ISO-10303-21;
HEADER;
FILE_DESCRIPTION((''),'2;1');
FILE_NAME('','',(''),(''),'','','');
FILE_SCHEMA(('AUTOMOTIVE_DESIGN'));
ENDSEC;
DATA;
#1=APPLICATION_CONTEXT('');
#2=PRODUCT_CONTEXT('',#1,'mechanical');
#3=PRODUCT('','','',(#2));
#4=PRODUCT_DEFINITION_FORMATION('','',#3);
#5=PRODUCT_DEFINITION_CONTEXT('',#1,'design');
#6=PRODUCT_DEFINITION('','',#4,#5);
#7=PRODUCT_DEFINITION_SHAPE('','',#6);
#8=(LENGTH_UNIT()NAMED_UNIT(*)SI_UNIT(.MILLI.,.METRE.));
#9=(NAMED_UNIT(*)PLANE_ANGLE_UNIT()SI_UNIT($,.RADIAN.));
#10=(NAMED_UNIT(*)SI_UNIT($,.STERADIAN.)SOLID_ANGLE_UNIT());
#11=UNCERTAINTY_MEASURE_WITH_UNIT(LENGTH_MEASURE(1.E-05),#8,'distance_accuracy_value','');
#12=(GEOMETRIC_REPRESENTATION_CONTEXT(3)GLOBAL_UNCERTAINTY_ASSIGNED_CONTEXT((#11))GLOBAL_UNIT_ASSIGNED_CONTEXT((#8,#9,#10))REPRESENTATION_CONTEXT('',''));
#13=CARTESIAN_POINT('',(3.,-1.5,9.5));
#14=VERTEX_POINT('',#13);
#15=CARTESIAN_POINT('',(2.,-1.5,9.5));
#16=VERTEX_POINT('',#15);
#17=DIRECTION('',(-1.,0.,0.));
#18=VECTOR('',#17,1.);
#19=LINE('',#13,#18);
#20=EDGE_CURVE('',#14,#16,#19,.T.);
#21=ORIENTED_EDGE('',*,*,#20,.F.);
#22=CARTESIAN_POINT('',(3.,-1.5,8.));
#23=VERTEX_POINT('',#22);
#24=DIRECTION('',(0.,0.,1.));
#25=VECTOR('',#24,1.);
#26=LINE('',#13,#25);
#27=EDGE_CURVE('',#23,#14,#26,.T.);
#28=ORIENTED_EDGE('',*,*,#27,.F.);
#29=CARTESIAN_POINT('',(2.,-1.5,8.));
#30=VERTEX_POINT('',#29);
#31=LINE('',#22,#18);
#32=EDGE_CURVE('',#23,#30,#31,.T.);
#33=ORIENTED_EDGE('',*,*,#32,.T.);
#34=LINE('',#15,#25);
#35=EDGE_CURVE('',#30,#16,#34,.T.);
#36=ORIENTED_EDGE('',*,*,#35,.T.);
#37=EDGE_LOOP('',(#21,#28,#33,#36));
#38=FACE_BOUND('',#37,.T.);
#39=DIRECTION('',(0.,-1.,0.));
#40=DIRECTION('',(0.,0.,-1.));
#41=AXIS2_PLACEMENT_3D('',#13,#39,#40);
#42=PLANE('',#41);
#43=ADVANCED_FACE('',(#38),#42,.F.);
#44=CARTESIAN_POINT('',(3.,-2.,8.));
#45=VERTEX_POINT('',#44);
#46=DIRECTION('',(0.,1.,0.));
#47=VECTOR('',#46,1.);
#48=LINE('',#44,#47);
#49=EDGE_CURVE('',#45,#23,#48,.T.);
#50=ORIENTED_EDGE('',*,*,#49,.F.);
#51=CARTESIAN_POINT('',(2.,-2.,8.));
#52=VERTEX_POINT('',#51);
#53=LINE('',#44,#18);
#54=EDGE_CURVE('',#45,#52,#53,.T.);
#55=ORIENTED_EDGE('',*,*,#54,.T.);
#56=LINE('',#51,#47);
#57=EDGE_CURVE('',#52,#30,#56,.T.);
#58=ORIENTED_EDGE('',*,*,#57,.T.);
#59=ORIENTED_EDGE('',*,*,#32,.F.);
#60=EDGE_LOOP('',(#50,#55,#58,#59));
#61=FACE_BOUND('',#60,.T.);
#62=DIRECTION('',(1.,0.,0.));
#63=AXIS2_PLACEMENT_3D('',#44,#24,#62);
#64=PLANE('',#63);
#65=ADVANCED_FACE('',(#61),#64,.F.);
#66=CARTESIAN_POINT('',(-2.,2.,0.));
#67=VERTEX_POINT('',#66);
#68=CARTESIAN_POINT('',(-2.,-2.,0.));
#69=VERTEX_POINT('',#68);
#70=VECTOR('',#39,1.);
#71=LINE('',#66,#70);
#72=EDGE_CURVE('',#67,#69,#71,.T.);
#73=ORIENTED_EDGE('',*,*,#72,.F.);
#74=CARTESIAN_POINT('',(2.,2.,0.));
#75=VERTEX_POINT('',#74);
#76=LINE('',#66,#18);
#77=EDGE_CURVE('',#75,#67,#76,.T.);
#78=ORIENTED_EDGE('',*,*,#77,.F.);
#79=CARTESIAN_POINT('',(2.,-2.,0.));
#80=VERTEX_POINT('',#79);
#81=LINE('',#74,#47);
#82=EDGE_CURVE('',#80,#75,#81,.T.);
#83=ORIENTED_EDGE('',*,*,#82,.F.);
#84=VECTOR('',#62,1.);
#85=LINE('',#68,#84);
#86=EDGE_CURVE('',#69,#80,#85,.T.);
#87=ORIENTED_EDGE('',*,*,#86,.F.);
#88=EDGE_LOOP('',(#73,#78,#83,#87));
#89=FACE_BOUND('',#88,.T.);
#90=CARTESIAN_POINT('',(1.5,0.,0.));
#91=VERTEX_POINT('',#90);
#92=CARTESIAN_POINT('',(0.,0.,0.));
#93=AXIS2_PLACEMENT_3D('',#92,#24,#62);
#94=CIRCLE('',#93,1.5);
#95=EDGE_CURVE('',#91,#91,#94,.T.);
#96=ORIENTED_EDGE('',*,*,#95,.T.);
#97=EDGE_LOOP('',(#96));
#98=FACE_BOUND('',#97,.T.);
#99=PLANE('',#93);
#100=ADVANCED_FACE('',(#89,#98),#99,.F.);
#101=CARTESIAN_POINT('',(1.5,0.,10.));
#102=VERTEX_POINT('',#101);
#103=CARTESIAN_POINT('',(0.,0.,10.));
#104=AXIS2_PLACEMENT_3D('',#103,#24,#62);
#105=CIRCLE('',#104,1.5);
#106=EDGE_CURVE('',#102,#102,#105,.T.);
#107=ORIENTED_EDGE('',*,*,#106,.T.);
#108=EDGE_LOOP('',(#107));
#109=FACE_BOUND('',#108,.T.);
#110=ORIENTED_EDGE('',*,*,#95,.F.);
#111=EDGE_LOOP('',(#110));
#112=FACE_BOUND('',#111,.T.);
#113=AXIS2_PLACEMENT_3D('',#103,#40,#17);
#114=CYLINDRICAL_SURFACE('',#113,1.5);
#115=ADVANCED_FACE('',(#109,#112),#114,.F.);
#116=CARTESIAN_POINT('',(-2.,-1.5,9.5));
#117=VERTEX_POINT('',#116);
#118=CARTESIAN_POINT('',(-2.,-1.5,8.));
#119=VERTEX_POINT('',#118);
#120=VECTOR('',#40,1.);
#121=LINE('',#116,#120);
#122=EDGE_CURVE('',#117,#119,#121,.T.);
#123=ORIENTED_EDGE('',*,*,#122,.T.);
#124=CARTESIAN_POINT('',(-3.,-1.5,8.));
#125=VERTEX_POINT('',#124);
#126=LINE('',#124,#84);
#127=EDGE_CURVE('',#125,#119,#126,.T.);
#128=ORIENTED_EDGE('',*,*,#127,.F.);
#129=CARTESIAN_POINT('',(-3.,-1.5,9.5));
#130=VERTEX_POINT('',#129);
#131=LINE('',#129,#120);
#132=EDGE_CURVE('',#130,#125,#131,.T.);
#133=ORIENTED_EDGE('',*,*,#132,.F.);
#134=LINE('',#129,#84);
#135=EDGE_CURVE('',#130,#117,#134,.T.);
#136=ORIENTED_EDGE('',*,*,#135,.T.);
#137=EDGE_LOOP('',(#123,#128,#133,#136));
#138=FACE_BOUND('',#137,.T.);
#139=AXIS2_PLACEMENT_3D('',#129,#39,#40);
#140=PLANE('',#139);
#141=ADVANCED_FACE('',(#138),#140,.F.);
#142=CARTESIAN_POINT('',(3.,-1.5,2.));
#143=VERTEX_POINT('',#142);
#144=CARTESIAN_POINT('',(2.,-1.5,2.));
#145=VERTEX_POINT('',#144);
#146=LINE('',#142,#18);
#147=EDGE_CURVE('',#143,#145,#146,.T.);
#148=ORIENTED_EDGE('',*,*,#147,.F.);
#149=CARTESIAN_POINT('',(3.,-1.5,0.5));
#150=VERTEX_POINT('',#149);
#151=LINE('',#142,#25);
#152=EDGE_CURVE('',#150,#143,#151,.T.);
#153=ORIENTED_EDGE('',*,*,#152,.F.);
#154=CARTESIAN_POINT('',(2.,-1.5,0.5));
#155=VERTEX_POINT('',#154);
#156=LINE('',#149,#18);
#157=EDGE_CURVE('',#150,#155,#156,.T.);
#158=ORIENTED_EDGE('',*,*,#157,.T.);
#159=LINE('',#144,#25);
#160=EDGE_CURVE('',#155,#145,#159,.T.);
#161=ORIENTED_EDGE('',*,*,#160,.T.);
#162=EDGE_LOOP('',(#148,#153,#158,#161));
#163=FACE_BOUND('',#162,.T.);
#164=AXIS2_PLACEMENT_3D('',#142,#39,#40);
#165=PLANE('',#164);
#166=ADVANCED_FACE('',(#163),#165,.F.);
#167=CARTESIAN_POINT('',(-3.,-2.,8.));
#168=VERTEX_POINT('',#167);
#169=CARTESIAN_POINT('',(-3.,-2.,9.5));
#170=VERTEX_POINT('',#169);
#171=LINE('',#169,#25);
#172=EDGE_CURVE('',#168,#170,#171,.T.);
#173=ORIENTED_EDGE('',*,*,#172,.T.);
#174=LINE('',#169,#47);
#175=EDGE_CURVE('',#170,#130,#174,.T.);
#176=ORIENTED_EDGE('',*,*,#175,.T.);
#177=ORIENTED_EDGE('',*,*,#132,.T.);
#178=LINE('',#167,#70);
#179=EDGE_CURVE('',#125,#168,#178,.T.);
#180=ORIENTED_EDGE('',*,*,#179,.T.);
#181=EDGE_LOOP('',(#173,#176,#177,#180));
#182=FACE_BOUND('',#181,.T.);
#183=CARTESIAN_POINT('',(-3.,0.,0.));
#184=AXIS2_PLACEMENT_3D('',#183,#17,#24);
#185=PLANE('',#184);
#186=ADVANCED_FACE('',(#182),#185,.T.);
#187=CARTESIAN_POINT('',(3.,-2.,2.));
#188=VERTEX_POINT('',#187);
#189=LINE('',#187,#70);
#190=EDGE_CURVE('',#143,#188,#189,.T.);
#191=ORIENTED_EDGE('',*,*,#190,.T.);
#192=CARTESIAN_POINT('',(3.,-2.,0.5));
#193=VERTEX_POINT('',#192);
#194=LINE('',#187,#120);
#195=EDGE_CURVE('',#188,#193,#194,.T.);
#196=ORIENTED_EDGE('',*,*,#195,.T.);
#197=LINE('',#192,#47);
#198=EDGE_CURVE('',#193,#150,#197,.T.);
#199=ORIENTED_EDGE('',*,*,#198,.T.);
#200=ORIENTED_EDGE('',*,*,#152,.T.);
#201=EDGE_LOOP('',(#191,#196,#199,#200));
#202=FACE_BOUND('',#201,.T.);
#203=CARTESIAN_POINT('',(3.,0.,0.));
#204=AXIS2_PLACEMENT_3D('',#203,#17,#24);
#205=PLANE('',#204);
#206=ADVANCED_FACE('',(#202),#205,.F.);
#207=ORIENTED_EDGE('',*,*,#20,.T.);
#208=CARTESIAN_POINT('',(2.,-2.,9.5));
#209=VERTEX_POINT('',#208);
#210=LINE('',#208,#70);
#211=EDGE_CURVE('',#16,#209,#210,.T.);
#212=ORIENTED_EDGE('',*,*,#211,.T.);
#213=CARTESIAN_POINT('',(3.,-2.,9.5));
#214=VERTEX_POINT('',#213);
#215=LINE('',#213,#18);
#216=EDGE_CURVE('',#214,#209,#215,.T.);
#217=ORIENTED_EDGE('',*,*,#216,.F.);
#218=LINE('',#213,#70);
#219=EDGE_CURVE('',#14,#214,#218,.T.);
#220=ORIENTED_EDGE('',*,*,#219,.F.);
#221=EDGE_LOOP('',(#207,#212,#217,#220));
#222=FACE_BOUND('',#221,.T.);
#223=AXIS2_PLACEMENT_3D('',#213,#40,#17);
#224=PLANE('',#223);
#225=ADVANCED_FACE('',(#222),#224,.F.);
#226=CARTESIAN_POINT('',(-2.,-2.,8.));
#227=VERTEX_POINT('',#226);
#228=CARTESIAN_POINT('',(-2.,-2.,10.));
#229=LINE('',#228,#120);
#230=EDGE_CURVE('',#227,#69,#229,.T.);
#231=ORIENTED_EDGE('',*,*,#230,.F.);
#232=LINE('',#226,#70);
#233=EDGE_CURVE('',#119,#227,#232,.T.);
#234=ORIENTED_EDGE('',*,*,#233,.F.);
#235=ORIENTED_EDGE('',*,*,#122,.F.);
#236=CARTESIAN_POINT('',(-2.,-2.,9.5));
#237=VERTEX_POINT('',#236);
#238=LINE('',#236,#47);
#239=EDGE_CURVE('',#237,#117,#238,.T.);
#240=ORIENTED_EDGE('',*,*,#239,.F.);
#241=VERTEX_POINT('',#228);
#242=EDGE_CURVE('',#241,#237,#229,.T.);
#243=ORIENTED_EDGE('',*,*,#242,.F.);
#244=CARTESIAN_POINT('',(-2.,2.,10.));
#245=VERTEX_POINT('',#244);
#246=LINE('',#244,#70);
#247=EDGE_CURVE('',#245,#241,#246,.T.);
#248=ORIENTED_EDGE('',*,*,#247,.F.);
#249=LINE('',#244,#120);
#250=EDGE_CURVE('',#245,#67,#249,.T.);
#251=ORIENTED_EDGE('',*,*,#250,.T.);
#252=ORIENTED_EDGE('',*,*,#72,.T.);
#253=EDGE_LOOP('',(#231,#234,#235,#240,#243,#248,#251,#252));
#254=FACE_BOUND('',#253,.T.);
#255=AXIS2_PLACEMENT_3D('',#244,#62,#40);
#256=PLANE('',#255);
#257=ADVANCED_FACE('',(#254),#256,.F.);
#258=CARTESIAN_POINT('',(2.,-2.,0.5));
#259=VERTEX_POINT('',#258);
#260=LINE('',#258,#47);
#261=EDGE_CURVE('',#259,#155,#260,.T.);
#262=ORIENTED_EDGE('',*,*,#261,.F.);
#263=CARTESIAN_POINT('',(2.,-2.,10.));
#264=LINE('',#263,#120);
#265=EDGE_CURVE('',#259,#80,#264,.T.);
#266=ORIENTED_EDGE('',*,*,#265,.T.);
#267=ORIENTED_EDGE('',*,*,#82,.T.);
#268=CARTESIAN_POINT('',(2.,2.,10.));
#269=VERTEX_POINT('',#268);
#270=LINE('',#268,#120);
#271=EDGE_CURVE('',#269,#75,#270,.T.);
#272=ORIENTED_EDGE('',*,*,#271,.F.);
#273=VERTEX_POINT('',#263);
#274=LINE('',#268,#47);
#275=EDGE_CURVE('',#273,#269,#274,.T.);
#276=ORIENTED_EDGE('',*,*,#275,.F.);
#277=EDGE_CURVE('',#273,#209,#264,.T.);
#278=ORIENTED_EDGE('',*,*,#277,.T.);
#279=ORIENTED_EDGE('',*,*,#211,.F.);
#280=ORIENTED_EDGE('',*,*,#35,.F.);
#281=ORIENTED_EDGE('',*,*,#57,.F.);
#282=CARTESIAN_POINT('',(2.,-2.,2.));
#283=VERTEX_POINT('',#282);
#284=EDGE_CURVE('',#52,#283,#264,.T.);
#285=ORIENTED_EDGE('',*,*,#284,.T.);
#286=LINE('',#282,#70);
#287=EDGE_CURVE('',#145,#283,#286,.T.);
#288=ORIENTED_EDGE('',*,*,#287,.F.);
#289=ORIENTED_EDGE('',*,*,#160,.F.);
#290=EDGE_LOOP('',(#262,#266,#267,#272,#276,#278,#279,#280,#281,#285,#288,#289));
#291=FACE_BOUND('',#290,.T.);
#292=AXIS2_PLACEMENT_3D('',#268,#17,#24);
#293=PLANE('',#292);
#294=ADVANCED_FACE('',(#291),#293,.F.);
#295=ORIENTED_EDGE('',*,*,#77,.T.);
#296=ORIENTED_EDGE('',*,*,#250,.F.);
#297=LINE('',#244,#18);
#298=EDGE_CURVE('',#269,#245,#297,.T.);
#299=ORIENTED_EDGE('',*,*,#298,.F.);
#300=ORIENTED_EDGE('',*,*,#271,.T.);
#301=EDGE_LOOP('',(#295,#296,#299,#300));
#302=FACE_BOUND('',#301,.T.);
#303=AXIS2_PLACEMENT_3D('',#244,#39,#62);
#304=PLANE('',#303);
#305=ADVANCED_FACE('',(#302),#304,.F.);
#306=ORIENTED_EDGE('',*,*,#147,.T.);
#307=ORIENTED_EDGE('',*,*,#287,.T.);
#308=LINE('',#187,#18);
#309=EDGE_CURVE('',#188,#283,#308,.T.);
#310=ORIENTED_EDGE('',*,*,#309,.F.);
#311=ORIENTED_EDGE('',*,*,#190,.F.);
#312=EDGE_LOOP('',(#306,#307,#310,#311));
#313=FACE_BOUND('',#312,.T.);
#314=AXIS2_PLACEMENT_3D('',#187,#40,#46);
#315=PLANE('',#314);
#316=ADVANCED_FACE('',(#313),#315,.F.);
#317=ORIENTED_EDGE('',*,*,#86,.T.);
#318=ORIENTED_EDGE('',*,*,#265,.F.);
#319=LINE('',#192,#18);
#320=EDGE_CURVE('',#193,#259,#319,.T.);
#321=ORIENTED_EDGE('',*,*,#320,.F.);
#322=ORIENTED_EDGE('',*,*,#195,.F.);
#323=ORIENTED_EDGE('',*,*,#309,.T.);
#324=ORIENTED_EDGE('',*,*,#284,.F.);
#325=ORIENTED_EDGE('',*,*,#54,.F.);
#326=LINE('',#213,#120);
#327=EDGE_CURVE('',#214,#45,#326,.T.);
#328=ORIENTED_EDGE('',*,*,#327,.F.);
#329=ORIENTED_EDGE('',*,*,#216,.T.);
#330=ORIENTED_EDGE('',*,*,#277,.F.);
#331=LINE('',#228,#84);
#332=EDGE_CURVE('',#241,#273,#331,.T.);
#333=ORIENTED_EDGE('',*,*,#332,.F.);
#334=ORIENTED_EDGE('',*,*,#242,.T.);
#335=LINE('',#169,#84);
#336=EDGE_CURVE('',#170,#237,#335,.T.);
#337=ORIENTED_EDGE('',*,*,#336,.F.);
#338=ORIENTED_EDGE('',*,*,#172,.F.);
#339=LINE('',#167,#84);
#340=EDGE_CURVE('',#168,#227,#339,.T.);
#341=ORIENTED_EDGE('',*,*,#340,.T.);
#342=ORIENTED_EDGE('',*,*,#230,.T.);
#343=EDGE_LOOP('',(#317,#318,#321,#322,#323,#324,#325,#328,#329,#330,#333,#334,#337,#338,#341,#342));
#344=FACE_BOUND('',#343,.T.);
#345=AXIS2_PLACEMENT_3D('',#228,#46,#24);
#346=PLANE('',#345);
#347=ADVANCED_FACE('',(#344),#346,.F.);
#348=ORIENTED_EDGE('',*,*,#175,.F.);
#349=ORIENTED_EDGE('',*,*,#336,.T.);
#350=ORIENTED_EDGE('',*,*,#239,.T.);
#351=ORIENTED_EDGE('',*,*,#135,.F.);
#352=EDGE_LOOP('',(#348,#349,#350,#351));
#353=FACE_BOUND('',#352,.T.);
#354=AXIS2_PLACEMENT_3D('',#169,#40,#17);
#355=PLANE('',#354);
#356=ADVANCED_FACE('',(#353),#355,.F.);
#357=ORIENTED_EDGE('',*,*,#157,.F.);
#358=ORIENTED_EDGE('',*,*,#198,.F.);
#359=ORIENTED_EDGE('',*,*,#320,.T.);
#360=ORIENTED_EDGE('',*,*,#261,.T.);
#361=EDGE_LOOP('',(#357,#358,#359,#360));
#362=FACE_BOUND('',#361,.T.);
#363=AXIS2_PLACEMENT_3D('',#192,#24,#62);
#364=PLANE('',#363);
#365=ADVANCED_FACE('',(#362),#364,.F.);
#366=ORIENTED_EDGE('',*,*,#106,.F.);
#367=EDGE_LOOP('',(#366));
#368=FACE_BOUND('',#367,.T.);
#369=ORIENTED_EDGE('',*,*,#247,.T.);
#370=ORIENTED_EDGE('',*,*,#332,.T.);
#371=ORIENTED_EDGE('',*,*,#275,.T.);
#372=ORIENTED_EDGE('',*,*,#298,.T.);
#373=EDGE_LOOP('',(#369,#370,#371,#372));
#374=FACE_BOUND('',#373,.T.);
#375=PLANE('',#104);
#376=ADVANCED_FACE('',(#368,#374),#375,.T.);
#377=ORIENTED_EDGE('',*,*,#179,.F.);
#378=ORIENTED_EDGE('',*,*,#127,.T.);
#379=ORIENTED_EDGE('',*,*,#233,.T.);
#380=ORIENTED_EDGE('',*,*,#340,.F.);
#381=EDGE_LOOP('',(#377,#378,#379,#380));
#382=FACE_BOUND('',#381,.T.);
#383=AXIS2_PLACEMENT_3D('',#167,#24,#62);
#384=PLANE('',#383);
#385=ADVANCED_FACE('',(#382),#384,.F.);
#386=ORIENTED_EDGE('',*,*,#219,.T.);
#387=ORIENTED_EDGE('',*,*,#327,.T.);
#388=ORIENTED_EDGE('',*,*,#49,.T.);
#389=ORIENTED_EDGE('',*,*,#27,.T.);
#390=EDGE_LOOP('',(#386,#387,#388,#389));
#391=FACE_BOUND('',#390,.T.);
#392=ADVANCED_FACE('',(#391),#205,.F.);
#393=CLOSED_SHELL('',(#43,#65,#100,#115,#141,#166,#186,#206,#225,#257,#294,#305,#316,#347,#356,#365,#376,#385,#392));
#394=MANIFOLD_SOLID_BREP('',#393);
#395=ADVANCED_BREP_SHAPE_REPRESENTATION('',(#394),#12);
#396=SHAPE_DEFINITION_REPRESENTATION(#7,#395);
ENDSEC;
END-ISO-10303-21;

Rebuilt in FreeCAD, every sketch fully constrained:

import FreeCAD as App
import Part
import Sketcher
from FreeCAD import Vector
Q = App.Units.Quantity


def add_polygon(sketch, points):
    """Adds a closed chain of lines whose ends are joined by coincident constraints."""
    first, n = sketch.GeometryCount, len(points)
    for a, b in zip(points, points[1:] + points[:1]):
        sketch.addGeometry(Part.LineSegment(App.Vector(*a, 0), App.Vector(*b, 0)), False)
    for i in range(n):
        sketch.addConstraint(Sketcher.Constraint("Coincident", first + i, 2, first + (i + 1) % n, 1))

doc = App.newDocument("Part")
body = doc.addObject("PartDesign::Body", "Body")

sketch1 = doc.addObject("Sketcher::SketchObject", "Sketch")
body.addObject(sketch1)
sketch1.AttachmentSupport = (doc.XY_Plane, [""])
sketch1.MapMode = "FlatFace"
add_polygon(sketch1, [(-2, 2), (-2, -2), (2, -2), (2, 2)])
sketch1.addGeometry(Part.Circle(Vector(0, 0, 0), Vector(0, 0, 1), 1.5), False)
sketch1.addConstraint([
    Sketcher.Constraint("Vertical", 0),
    Sketcher.Constraint("Horizontal", 1),
    Sketcher.Constraint("Vertical", 2),
    Sketcher.Constraint("Horizontal", 3),
    Sketcher.Constraint("Coincident", 4, 3, -1, 1),
    Sketcher.Constraint("Symmetric", 0, 2, 2, 2, -1, 1),
    Sketcher.Constraint("Equal", 3, 0),
    Sketcher.Constraint("Diameter", 4, Q("3 mm")),
    Sketcher.Constraint("DistanceX", 1, 1, 1, 2, Q("4 mm")),
])
pad1 = doc.addObject("PartDesign::Pad", "Pad")
body.addObject(pad1)
pad1.Profile = sketch1
pad1.Length = 10

sketch2 = doc.addObject("Sketcher::SketchObject", "Sketch001")
body.addObject(sketch2)
sketch2.AttachmentSupport = (doc.YZ_Plane, [""])
sketch2.MapMode = "FlatFace"
sketch2.AttachmentOffset = App.Placement(Vector(0, 0, 2), App.Rotation())
add_polygon(sketch2, [(-1.5, 9.5), (-2, 9.5), (-2, 8), (-1.5, 8)])
add_polygon(sketch2, [(-1.5, 2), (-2, 2), (-2, 0.5), (-1.5, 0.5)])
sketch2.addConstraint([
    Sketcher.Constraint("Horizontal", 0),
    Sketcher.Constraint("Vertical", 1),
    Sketcher.Constraint("Horizontal", 2),
    Sketcher.Constraint("Vertical", 3),
    Sketcher.Constraint("Horizontal", 4),
    Sketcher.Constraint("Vertical", 5),
    Sketcher.Constraint("Horizontal", 6),
    Sketcher.Constraint("Vertical", 7),
    Sketcher.Constraint("Vertical", 1, 2, 4, 2),
    Sketcher.Constraint("Vertical", 3, 2, 6, 2),
    Sketcher.Constraint("Equal", 3, 5),
    Sketcher.Constraint("DistanceX", 0, 2, 0, 1, Q("0.5 mm")),
    Sketcher.Constraint("DistanceY", 1, 2, 1, 1, Q("1.5 mm")),
    Sketcher.Constraint("DistanceX", 0, 2, -1, 1, Q("2 mm")),
    Sketcher.Constraint("DistanceY", -1, 1, 1, 2, Q("8 mm")),
    Sketcher.Constraint("DistanceY", -1, 1, 4, 2, Q("2 mm")),
])
pad2 = doc.addObject("PartDesign::Pad", "Pad001")
body.addObject(pad2)
pad2.Profile = sketch2
pad2.Length = 1

sketch3 = doc.addObject("Sketcher::SketchObject", "Sketch002")
body.addObject(sketch3)
sketch3.AttachmentSupport = (doc.YZ_Plane, [""])
sketch3.MapMode = "FlatFace"
sketch3.AttachmentOffset = App.Placement(Vector(0, 0, -2), App.Rotation())
add_polygon(sketch3, [(-1.5, 8), (-2, 8), (-2, 9.5), (-1.5, 9.5)])
sketch3.addConstraint([
    Sketcher.Constraint("Horizontal", 0),
    Sketcher.Constraint("Vertical", 1),
    Sketcher.Constraint("Horizontal", 2),
    Sketcher.Constraint("Vertical", 3),
    Sketcher.Constraint("DistanceX", 0, 2, 0, 1, Q("0.5 mm")),
    Sketcher.Constraint("DistanceY", 1, 1, 1, 2, Q("1.5 mm")),
    Sketcher.Constraint("DistanceX", 0, 2, -1, 1, Q("2 mm")),
    Sketcher.Constraint("DistanceY", -1, 1, 0, 2, Q("8 mm")),
])
pad3 = doc.addObject("PartDesign::Pad", "Pad002")
body.addObject(pad3)
pad3.Profile = sketch3
pad3.Length = 1
pad3.Reversed = True

doc.recompute()
